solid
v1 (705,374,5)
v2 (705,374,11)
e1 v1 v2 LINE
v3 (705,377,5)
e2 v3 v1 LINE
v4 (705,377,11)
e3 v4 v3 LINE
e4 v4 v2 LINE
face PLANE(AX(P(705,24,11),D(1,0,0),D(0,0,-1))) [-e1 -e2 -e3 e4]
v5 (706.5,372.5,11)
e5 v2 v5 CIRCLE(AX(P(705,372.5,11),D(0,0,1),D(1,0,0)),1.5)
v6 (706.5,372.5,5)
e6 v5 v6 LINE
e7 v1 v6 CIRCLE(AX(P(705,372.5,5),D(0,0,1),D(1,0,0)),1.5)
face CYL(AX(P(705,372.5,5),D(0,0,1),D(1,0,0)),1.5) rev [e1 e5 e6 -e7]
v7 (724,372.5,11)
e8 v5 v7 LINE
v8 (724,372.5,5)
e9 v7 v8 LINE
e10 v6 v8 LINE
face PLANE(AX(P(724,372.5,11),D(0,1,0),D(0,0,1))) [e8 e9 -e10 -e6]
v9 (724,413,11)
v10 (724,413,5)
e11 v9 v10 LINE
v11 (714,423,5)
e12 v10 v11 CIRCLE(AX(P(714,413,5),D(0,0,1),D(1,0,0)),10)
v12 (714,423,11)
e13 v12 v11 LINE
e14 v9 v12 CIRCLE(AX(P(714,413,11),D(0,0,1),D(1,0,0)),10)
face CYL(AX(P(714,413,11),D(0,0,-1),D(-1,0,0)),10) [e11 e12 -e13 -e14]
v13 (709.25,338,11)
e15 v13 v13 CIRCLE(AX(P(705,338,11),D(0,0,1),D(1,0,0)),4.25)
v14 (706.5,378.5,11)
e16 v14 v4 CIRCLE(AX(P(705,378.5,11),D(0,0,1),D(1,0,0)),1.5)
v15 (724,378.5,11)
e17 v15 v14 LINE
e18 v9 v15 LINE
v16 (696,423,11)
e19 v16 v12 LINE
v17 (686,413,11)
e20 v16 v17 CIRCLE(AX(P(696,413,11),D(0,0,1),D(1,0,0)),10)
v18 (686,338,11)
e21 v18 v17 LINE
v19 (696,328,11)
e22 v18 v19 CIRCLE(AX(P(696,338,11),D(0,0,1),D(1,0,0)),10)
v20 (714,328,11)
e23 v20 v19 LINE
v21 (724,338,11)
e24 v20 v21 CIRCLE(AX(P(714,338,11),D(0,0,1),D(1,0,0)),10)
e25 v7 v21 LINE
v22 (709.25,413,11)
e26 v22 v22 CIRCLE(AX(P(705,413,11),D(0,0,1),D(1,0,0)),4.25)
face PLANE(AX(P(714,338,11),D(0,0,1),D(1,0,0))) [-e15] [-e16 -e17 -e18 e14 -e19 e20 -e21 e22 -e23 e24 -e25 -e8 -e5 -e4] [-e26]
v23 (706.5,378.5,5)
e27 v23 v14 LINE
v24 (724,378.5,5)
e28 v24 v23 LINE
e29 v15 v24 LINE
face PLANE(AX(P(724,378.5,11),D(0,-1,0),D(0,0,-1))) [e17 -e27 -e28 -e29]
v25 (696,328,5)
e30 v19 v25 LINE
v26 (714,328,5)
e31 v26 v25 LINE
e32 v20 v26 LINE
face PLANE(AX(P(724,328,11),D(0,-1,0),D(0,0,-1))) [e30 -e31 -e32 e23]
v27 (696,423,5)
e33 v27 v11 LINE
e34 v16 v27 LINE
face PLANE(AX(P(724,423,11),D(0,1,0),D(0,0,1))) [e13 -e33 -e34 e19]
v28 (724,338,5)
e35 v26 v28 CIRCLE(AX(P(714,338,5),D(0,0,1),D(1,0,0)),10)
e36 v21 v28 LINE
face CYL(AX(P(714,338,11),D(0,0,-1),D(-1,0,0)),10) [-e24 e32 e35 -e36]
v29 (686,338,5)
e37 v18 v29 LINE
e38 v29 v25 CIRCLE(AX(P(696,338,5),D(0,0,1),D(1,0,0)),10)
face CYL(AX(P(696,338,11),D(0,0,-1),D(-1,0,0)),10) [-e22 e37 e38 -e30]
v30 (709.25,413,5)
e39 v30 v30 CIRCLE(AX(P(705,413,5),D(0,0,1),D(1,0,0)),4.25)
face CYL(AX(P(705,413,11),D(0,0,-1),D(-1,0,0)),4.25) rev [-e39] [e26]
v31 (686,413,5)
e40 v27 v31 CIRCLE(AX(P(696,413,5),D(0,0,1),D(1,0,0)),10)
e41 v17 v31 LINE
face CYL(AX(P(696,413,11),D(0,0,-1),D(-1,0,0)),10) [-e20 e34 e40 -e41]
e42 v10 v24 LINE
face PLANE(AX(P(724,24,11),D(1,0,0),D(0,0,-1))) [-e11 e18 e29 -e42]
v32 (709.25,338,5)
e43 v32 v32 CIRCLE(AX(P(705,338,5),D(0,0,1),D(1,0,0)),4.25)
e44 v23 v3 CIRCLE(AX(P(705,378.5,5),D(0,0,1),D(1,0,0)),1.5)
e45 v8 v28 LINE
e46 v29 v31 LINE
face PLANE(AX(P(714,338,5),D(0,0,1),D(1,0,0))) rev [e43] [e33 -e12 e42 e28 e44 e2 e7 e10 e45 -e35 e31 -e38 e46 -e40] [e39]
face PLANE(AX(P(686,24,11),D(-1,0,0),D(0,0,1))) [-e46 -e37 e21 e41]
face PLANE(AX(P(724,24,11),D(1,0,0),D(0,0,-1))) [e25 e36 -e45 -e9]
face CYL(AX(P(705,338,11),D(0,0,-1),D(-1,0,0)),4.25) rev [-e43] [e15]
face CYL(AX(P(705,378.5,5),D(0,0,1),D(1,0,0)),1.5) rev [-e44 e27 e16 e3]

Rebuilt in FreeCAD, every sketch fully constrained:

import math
import FreeCAD as App
import Part
import Sketcher
from FreeCAD import Vector

doc = App.newDocument("Part")
body = doc.addObject("PartDesign::Body", "Body")

# Sketch on XY plane
sketch1 = body.newObject("Sketcher::SketchObject", "Sketch")
sketch1.AttachmentSupport = (doc.getObject("XY_Plane"), [""])
sketch1.MapMode = "FlatFace"
sketch1.AttachmentOffset = App.Placement(Vector(0, 0, 5), App.Rotation())
sketch1.addGeometry([
    Part.LineSegment(Vector(724, 378.5, 0), Vector(724, 413, 0)),  # 0
    Part.ArcOfCircle(Part.Circle(Vector(714, 413, 0), Vector(0, 0, 1), 10), math.radians(0), math.radians(90)),  # 1
    Part.LineSegment(Vector(714, 423, 0), Vector(696, 423, 0)),  # 2
    Part.ArcOfCircle(Part.Circle(Vector(696, 413, 0), Vector(0, 0, 1), 10), math.radians(90), math.radians(180)),  # 3
    Part.LineSegment(Vector(686, 413, 0), Vector(686, 338, 0)),  # 4
    Part.ArcOfCircle(Part.Circle(Vector(696, 338, 0), Vector(0, 0, 1), 10), math.radians(180), math.radians(270)),  # 5
    Part.LineSegment(Vector(696, 328, 0), Vector(714, 328, 0)),  # 6
    Part.ArcOfCircle(Part.Circle(Vector(714, 338, 0), Vector(0, 0, 1), 10), math.radians(-90), math.radians(0)),  # 7
    Part.LineSegment(Vector(724, 338, 0), Vector(724, 372.5, 0)),  # 8
    Part.LineSegment(Vector(724, 372.5, 0), Vector(705, 372.5, 0)),  # 9
    Part.LineSegment(Vector(705, 372.5, 0), Vector(705, 378.5, 0)),  # 10
    Part.LineSegment(Vector(705, 378.5, 0), Vector(724, 378.5, 0)),  # 11
    Part.Circle(Vector(705, 338, 0), Vector(0, 0, 1), 4.25),  # 12
    Part.Circle(Vector(705, 413, 0), Vector(0, 0, 1), 4.25),  # 13
], False)
sketch1.addConstraint([
    Sketcher.Constraint("Tangent", 0, 2, 1, 1),
    Sketcher.Constraint("Tangent", 1, 2, 2, 1),
    Sketcher.Constraint("Tangent", 2, 2, 3, 1),
    Sketcher.Constraint("Tangent", 3, 2, 4, 1),
    Sketcher.Constraint("Tangent", 4, 2, 5, 1),
    Sketcher.Constraint("Tangent", 5, 2, 6, 1),
    Sketcher.Constraint("Tangent", 6, 2, 7, 1),
    Sketcher.Constraint("Tangent", 7, 2, 8, 1),
    Sketcher.Constraint("Coincident", 8, 2, 9, 1),
    Sketcher.Constraint("Coincident", 9, 2, 10, 1),
    Sketcher.Constraint("Coincident", 10, 2, 11, 1),
    Sketcher.Constraint("Coincident", 11, 2, 0, 1),
    Sketcher.Constraint("Vertical", 0),
    Sketcher.Constraint("Horizontal", 2),
    Sketcher.Constraint("Vertical", 4),
    Sketcher.Constraint("Horizontal", 6),
    Sketcher.Constraint("Vertical", 8),
    Sketcher.Constraint("Horizontal", 9),
    Sketcher.Constraint("Vertical", 10),
    Sketcher.Constraint("Horizontal", 11),
    Sketcher.Constraint("Equal", 1, 3),
    Sketcher.Constraint("Equal", 3, 5),
    Sketcher.Constraint("Equal", 5, 7),
    Sketcher.Constraint("Equal", 12, 13),
    Sketcher.Constraint("Horizontal", 7, 3, 12, 3),
    Sketcher.Constraint("Horizontal", 3, 3, 13, 3),
    Sketcher.Constraint("Vertical", 1, 3, 7, 3),
    Sketcher.Constraint("Vertical", 12, 3, 13, 3),
    Sketcher.Constraint("Vertical", 13, 3, 9, 2),
    Sketcher.Constraint("Equal", 0, 8),
    Sketcher.Constraint("Radius", 1, 10.0),
    Sketcher.Constraint("Diameter", 12, 8.5),
    Sketcher.Constraint("DistanceX", 2, 2, 2, 1, 18.0),
    Sketcher.Constraint("DistanceX", 9, 2, 9, 1, 19.0),
    Sketcher.Constraint("DistanceY", 4, 2, 4, 1, 75.0),
    Sketcher.Constraint("DistanceY", 10, 1, 10, 2, 6.0),
    Sketcher.Constraint("DistanceX", -1, 1, 1, 3, 714.0),
    Sketcher.Constraint("DistanceY", -1, 1, 1, 3, 413.0),
])
pad1 = body.newObject("PartDesign::Pad", "Pad")
pad1.Profile = sketch1
pad1.Length = 6

# Sketch on XY plane
sketch2 = body.newObject("Sketcher::SketchObject", "Sketch001")
sketch2.AttachmentSupport = (doc.getObject("XY_Plane"), [""])
sketch2.MapMode = "FlatFace"
sketch2.AttachmentOffset = App.Placement(Vector(0, 0, 11), App.Rotation())
sketch2.addGeometry([
    Part.Circle(Vector(705, 378.5, 0), Vector(0, 0, 1), 1.5),
    Part.Circle(Vector(705, 372.5, 0), Vector(0, 0, 1), 1.5),
], False)
sketch2.addConstraint([
    Sketcher.Constraint("Equal", 0, 1),
    Sketcher.Constraint("Vertical", 0, 3, 1, 3),
    Sketcher.Constraint("Diameter", 0, 3.0),
    Sketcher.Constraint("DistanceX", -1, 1, 0, 3, 705.0),
    Sketcher.Constraint("DistanceY", 1, 3, 0, 3, 6.0),
    Sketcher.Constraint("DistanceY", -1, 1, 0, 3, 378.5),
])
pocket1 = body.newObject("PartDesign::Pocket", "Pocket")
pocket1.Profile = sketch2
pocket1.Type = "ThroughAll"

doc.recompute()
